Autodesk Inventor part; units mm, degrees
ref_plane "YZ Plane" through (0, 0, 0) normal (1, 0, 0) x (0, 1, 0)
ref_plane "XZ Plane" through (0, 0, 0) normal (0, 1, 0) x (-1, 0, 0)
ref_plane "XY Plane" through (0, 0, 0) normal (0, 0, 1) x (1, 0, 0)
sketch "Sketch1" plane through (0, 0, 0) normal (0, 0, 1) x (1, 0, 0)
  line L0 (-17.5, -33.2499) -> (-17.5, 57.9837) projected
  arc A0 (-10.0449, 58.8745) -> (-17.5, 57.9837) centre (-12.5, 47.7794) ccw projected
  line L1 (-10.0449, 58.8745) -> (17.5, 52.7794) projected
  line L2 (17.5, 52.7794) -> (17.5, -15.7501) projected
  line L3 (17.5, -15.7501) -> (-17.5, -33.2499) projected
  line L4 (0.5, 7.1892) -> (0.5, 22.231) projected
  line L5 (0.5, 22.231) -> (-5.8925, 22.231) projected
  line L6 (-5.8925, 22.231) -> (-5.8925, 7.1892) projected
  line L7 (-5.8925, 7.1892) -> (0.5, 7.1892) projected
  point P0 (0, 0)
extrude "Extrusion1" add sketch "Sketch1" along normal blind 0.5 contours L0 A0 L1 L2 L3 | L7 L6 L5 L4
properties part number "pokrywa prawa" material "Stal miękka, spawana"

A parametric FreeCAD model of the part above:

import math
import FreeCAD as App
import Part
import Sketcher

doc = App.newDocument("Part")
body = doc.addObject("PartDesign::Body", "Body")

sketch1 = doc.addObject("Sketcher::SketchObject", "Sketch")
body.addObject(sketch1)
sketch1.AttachmentSupport = (doc.XY_Plane, [""])
sketch1.MapMode = "FlatFace"
sketch1.addGeometry(Part.LineSegment(App.Vector(-17.5, 57.9837, 0), App.Vector(-17.5, -33.2499, 0)), False)
sketch1.addGeometry(Part.LineSegment(App.Vector(-17.5, -33.2499, 0), App.Vector(17.5, -15.7501, 0)), False)
sketch1.addGeometry(Part.LineSegment(App.Vector(17.5, -15.7501, 0), App.Vector(17.5, 52.7794, 0)), False)
sketch1.addGeometry(Part.LineSegment(App.Vector(17.5, 52.7794, 0), App.Vector(-10.0449, 58.8745, 0)), False)
sketch1.addGeometry(Part.ArcOfCircle(Part.Circle(App.Vector(-12.5, 47.7794, 0), App.Vector(0, 0, 1), 11.363484), math.radians(77.522764), math.radians(116.10437)), False)
sketch1.addConstraint(Sketcher.Constraint("Coincident", 0, 2, 1, 1))
sketch1.addConstraint(Sketcher.Constraint("Coincident", 1, 2, 2, 1))
sketch1.addConstraint(Sketcher.Constraint("Coincident", 2, 2, 3, 1))
sketch1.addConstraint(Sketcher.Constraint("Tangent", 3, 2, 4, 1))
sketch1.addConstraint(Sketcher.Constraint("Coincident", 4, 2, 0, 1))
sketch1.addConstraint(Sketcher.Constraint("Vertical", 0))
sketch1.addConstraint(Sketcher.Constraint("Vertical", 2))
sketch1.addConstraint(Sketcher.Constraint("DistanceX", 0, 2, 4, 3, 5.0))
sketch1.addConstraint(Sketcher.Constraint("DistanceX", 0, 2, 1, 2, 35.0))
sketch1.addConstraint(Sketcher.Constraint("DistanceY", 4, 3, 2, 2, 5.0))
sketch1.addConstraint(Sketcher.Constraint("DistanceX", 4, 3, -1, 1, 12.5))
sketch1.addConstraint(Sketcher.Constraint("Radius", 4, 11.3635))
sketch1.addConstraint(Sketcher.Constraint("DistanceY", 0, 2, -1, 1, 33.25))
sketch1.addConstraint(Sketcher.Constraint("DistanceY", 1, 2, -1, 1, 15.75))
sketch1.addConstraint(Sketcher.Constraint("DistanceY", 0, 2, 0, 1, 91.2336))
pad1 = doc.addObject("PartDesign::Pad", "Pad")
body.addObject(pad1)
pad1.Profile = sketch1
pad1.Length = 0.5

doc.recompute()
